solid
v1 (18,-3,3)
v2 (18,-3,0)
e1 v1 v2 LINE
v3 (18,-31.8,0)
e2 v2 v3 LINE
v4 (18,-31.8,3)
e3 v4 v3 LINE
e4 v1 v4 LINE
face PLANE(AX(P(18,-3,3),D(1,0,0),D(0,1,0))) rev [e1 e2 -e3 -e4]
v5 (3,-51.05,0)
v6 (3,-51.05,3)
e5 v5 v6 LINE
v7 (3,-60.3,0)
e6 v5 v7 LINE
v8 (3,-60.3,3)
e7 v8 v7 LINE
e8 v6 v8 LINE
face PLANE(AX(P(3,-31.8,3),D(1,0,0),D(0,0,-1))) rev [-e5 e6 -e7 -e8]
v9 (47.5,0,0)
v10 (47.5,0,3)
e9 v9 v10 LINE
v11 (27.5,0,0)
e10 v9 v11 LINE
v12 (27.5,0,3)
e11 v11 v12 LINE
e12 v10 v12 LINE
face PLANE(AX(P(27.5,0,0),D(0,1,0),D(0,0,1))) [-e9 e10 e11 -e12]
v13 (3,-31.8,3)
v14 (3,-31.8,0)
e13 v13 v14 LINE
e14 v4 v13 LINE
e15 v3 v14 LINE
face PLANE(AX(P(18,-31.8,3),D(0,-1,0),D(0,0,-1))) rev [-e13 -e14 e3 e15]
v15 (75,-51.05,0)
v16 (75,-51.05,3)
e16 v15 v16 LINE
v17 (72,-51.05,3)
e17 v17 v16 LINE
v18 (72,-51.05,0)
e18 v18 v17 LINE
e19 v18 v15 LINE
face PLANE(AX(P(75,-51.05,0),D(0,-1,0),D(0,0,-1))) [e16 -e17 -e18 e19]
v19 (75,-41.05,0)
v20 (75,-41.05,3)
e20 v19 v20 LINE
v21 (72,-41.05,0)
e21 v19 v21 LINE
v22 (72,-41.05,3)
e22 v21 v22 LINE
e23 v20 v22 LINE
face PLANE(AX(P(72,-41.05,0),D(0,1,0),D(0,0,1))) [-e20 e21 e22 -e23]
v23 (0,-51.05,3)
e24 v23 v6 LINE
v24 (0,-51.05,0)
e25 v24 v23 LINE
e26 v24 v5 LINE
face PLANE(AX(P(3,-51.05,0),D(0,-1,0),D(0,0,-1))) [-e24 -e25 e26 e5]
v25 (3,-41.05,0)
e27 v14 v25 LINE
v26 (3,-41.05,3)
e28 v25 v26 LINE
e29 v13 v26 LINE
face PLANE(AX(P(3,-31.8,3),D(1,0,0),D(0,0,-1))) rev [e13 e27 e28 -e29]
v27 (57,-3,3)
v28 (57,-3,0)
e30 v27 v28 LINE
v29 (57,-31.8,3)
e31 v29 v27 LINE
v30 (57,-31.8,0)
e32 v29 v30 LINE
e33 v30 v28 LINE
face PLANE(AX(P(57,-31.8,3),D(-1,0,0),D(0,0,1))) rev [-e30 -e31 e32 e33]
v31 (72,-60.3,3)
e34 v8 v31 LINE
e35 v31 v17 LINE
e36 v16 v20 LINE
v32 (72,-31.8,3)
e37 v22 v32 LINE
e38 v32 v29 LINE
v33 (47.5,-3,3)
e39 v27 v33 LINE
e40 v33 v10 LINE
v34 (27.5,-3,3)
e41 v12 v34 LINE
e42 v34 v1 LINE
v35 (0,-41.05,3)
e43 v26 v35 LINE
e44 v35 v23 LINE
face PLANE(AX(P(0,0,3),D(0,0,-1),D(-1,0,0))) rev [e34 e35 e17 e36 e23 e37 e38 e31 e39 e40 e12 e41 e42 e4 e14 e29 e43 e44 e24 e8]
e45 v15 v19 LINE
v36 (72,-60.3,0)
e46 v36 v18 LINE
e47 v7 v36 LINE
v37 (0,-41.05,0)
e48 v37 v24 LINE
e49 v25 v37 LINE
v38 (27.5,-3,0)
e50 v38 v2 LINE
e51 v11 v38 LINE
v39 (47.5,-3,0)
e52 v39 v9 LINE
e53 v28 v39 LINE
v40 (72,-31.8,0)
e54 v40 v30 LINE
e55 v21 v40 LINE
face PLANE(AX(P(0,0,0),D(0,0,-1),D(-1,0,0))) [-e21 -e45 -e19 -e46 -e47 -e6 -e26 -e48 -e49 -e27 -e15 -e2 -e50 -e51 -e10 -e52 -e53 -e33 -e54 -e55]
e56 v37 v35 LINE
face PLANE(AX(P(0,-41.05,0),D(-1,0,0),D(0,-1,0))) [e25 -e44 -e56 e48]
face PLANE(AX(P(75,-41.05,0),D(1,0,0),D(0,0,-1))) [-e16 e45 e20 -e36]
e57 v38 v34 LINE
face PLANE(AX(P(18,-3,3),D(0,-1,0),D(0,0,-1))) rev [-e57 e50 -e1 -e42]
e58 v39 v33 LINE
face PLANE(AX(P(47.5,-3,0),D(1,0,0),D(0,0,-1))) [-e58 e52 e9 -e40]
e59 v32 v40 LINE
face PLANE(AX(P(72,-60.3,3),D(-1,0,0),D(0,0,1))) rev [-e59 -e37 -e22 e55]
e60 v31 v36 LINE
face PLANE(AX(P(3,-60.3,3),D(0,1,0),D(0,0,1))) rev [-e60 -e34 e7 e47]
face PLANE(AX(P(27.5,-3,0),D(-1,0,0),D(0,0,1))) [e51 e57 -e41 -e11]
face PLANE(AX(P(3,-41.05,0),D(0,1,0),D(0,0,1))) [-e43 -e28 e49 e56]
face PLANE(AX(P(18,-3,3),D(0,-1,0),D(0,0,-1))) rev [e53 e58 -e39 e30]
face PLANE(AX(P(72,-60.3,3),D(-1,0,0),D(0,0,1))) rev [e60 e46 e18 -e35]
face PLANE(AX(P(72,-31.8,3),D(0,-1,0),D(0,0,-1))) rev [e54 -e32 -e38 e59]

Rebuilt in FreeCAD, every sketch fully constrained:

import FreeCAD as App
import Part
import Sketcher

V = App.Vector

doc = App.newDocument("Part")
body = doc.addObject("PartDesign::Body", "Body")

sketch1 = body.newObject("Sketcher::SketchObject", "Sketch")
sketch1.AttachmentSupport = (doc.getObject("XY_Plane"), [""])
sketch1.MapMode = "FlatFace"
sketch1.addGeometry(Part.LineSegment(V(57, -3, 0), V(18, -3, 0)), False)
sketch1.addGeometry(Part.LineSegment(V(18, -3, 0), V(18, -32, 0)), False)
sketch1.addGeometry(Part.LineSegment(V(18, -32, 0), V(3, -32, 0)), False)
sketch1.addGeometry(Part.LineSegment(V(3, -32, 0), V(3, -60, 0)), False)
sketch1.addGeometry(Part.LineSegment(V(3, -60, 0), V(72, -60, 0)), False)
sketch1.addGeometry(Part.LineSegment(V(72, -60, 0), V(72, -32, 0)), False)
sketch1.addGeometry(Part.LineSegment(V(72, -32, 0), V(57, -32, 0)), False)
sketch1.addGeometry(Part.LineSegment(V(57, -32, 0), V(57, -3, 0)), False)
sketch1.addConstraint(Sketcher.Constraint("Coincident", 0, 2, 1, 1))
sketch1.addConstraint(Sketcher.Constraint("Coincident", 1, 2, 2, 1))
sketch1.addConstraint(Sketcher.Constraint("Coincident", 2, 2, 3, 1))
sketch1.addConstraint(Sketcher.Constraint("Coincident", 3, 2, 4, 1))
sketch1.addConstraint(Sketcher.Constraint("Coincident", 4, 2, 5, 1))
sketch1.addConstraint(Sketcher.Constraint("Coincident", 5, 2, 6, 1))
sketch1.addConstraint(Sketcher.Constraint("Coincident", 6, 2, 7, 1))
sketch1.addConstraint(Sketcher.Constraint("Coincident", 7, 2, 0, 1))
sketch1.addConstraint(Sketcher.Constraint("Horizontal", 0))
sketch1.addConstraint(Sketcher.Constraint("Vertical", 1))
sketch1.addConstraint(Sketcher.Constraint("Horizontal", 2))
sketch1.addConstraint(Sketcher.Constraint("Vertical", 3))
sketch1.addConstraint(Sketcher.Constraint("Horizontal", 4))
sketch1.addConstraint(Sketcher.Constraint("Vertical", 5))
sketch1.addConstraint(Sketcher.Constraint("Horizontal", 6))
sketch1.addConstraint(Sketcher.Constraint("Vertical", 7))
sketch1.addConstraint(Sketcher.Constraint("Horizontal", 2, 2, 5, 2))
sketch1.addConstraint(Sketcher.Constraint("Equal", 2, 6))
sketch1.addConstraint(Sketcher.Constraint("DistanceX", 0, 2, 0, 1, 39.0))
sketch1.addConstraint(Sketcher.Constraint("DistanceX", 2, 2, 2, 1, 15.0))
sketch1.addConstraint(Sketcher.Constraint("DistanceY", 1, 2, 1, 1, 28.8))
sketch1.addConstraint(Sketcher.Constraint("DistanceY", 3, 2, 3, 1, 28.5))
sketch1.addConstraint(Sketcher.Constraint("DistanceX", -1, 1, 0, 2, 18.0))
sketch1.addConstraint(Sketcher.Constraint("DistanceY", 0, 2, -1, 1, 3.0))
pad1 = body.newObject("PartDesign::Pad", "Pad")
pad1.Profile = sketch1
pad1.Length = 3

sketch2 = body.newObject("Sketcher::SketchObject", "Sketch001")
sketch2.AttachmentSupport = (doc.getObject("XY_Plane"), [""])
sketch2.MapMode = "FlatFace"
sketch2.AttachmentOffset = App.Placement(V(0, 0, 3), App.Rotation())
sketch2.addGeometry(Part.LineSegment(V(72, -41, 0), V(72, -51, 0)), False)
sketch2.addGeometry(Part.LineSegment(V(72, -51, 0), V(75, -51, 0)), False)
sketch2.addGeometry(Part.LineSegment(V(75, -51, 0), V(75, -41, 0)), False)
sketch2.addGeometry(Part.LineSegment(V(75, -41, 0), V(72, -41, 0)), False)
sketch2.addGeometry(Part.LineSegment(V(0, -41, 0), V(0, -51, 0)), False)
sketch2.addGeometry(Part.LineSegment(V(0, -51, 0), V(3, -51, 0)), False)
sketch2.addGeometry(Part.LineSegment(V(3, -51, 0), V(3, -41, 0)), False)
sketch2.addGeometry(Part.LineSegment(V(3, -41, 0), V(0, -41, 0)), False)
sketch2.addGeometry(Part.LineSegment(V(27.5, 0, 0), V(27.5, -3, 0)), False)
sketch2.addGeometry(Part.LineSegment(V(27.5, -3, 0), V(47.5, -3, 0)), False)
sketch2.addGeometry(Part.LineSegment(V(47.5, -3, 0), V(47.5, 0, 0)), False)
sketch2.addGeometry(Part.LineSegment(V(47.5, 0, 0), V(27.5, 0, 0)), False)
sketch2.addConstraint(Sketcher.Constraint("Coincident", 0, 2, 1, 1))
sketch2.addConstraint(Sketcher.Constraint("Coincident", 1, 2, 2, 1))
sketch2.addConstraint(Sketcher.Constraint("Coincident", 2, 2, 3, 1))
sketch2.addConstraint(Sketcher.Constraint("Coincident", 3, 2, 0, 1))
sketch2.addConstraint(Sketcher.Constraint("Coincident", 4, 2, 5, 1))
sketch2.addConstraint(Sketcher.Constraint("Coincident", 5, 2, 6, 1))
sketch2.addConstraint(Sketcher.Constraint("Coincident", 6, 2, 7, 1))
sketch2.addConstraint(Sketcher.Constraint("Coincident", 7, 2, 4, 1))
sketch2.addConstraint(Sketcher.Constraint("Coincident", 8, 2, 9, 1))
sketch2.addConstraint(Sketcher.Constraint("Coincident", 9, 2, 10, 1))
sketch2.addConstraint(Sketcher.Constraint("Coincident", 10, 2, 11, 1))
sketch2.addConstraint(Sketcher.Constraint("Coincident", 11, 2, 8, 1))
sketch2.addConstraint(Sketcher.Constraint("Vertical", 0))
sketch2.addConstraint(Sketcher.Constraint("Horizontal", 1))
sketch2.addConstraint(Sketcher.Constraint("Vertical", 2))
sketch2.addConstraint(Sketcher.Constraint("Horizontal", 3))
sketch2.addConstraint(Sketcher.Constraint("Vertical", 4))
sketch2.addConstraint(Sketcher.Constraint("Horizontal", 5))
sketch2.addConstraint(Sketcher.Constraint("Vertical", 6))
sketch2.addConstraint(Sketcher.Constraint("Horizontal", 7))
sketch2.addConstraint(Sketcher.Constraint("Vertical", 8))
sketch2.addConstraint(Sketcher.Constraint("Horizontal", 9))
sketch2.addConstraint(Sketcher.Constraint("Vertical", 10))
sketch2.addConstraint(Sketcher.Constraint("Horizontal", 11))
sketch2.addConstraint(Sketcher.Constraint("PointOnObject", 4, 2, -2))
sketch2.addConstraint(Sketcher.Constraint("PointOnObject", 10, 2, -1))
sketch2.addConstraint(Sketcher.Constraint("Horizontal", 1, 2, 4, 2))
sketch2.addConstraint(Sketcher.Constraint("Horizontal", 3, 2, 6, 2))
sketch2.addConstraint(Sketcher.Constraint("Equal", 3, 5))
sketch2.addConstraint(Sketcher.Constraint("Equal", 7, 8))
sketch2.addConstraint(Sketcher.Constraint("DistanceX", 1, 1, 1, 2, 3.0))
sketch2.addConstraint(Sketcher.Constraint("DistanceX", 9, 1, 9, 2, 20.0))
sketch2.addConstraint(Sketcher.Constraint("DistanceY", 0, 2, 0, 1, 10.0))
sketch2.addConstraint(Sketcher.Constraint("DistanceX", -1, 1, 0, 2, 72.0))
sketch2.addConstraint(Sketcher.Constraint("DistanceX", -1, 1, 8, 2, 27.5))
sketch2.addConstraint(Sketcher.Constraint("DistanceY", 0, 2, -1, 1, 51.05))
pad2 = body.newObject("PartDesign::Pad", "Pad001")
pad2.Profile = sketch2
pad2.Length = 3
pad2.Reversed = True

doc.recompute()
